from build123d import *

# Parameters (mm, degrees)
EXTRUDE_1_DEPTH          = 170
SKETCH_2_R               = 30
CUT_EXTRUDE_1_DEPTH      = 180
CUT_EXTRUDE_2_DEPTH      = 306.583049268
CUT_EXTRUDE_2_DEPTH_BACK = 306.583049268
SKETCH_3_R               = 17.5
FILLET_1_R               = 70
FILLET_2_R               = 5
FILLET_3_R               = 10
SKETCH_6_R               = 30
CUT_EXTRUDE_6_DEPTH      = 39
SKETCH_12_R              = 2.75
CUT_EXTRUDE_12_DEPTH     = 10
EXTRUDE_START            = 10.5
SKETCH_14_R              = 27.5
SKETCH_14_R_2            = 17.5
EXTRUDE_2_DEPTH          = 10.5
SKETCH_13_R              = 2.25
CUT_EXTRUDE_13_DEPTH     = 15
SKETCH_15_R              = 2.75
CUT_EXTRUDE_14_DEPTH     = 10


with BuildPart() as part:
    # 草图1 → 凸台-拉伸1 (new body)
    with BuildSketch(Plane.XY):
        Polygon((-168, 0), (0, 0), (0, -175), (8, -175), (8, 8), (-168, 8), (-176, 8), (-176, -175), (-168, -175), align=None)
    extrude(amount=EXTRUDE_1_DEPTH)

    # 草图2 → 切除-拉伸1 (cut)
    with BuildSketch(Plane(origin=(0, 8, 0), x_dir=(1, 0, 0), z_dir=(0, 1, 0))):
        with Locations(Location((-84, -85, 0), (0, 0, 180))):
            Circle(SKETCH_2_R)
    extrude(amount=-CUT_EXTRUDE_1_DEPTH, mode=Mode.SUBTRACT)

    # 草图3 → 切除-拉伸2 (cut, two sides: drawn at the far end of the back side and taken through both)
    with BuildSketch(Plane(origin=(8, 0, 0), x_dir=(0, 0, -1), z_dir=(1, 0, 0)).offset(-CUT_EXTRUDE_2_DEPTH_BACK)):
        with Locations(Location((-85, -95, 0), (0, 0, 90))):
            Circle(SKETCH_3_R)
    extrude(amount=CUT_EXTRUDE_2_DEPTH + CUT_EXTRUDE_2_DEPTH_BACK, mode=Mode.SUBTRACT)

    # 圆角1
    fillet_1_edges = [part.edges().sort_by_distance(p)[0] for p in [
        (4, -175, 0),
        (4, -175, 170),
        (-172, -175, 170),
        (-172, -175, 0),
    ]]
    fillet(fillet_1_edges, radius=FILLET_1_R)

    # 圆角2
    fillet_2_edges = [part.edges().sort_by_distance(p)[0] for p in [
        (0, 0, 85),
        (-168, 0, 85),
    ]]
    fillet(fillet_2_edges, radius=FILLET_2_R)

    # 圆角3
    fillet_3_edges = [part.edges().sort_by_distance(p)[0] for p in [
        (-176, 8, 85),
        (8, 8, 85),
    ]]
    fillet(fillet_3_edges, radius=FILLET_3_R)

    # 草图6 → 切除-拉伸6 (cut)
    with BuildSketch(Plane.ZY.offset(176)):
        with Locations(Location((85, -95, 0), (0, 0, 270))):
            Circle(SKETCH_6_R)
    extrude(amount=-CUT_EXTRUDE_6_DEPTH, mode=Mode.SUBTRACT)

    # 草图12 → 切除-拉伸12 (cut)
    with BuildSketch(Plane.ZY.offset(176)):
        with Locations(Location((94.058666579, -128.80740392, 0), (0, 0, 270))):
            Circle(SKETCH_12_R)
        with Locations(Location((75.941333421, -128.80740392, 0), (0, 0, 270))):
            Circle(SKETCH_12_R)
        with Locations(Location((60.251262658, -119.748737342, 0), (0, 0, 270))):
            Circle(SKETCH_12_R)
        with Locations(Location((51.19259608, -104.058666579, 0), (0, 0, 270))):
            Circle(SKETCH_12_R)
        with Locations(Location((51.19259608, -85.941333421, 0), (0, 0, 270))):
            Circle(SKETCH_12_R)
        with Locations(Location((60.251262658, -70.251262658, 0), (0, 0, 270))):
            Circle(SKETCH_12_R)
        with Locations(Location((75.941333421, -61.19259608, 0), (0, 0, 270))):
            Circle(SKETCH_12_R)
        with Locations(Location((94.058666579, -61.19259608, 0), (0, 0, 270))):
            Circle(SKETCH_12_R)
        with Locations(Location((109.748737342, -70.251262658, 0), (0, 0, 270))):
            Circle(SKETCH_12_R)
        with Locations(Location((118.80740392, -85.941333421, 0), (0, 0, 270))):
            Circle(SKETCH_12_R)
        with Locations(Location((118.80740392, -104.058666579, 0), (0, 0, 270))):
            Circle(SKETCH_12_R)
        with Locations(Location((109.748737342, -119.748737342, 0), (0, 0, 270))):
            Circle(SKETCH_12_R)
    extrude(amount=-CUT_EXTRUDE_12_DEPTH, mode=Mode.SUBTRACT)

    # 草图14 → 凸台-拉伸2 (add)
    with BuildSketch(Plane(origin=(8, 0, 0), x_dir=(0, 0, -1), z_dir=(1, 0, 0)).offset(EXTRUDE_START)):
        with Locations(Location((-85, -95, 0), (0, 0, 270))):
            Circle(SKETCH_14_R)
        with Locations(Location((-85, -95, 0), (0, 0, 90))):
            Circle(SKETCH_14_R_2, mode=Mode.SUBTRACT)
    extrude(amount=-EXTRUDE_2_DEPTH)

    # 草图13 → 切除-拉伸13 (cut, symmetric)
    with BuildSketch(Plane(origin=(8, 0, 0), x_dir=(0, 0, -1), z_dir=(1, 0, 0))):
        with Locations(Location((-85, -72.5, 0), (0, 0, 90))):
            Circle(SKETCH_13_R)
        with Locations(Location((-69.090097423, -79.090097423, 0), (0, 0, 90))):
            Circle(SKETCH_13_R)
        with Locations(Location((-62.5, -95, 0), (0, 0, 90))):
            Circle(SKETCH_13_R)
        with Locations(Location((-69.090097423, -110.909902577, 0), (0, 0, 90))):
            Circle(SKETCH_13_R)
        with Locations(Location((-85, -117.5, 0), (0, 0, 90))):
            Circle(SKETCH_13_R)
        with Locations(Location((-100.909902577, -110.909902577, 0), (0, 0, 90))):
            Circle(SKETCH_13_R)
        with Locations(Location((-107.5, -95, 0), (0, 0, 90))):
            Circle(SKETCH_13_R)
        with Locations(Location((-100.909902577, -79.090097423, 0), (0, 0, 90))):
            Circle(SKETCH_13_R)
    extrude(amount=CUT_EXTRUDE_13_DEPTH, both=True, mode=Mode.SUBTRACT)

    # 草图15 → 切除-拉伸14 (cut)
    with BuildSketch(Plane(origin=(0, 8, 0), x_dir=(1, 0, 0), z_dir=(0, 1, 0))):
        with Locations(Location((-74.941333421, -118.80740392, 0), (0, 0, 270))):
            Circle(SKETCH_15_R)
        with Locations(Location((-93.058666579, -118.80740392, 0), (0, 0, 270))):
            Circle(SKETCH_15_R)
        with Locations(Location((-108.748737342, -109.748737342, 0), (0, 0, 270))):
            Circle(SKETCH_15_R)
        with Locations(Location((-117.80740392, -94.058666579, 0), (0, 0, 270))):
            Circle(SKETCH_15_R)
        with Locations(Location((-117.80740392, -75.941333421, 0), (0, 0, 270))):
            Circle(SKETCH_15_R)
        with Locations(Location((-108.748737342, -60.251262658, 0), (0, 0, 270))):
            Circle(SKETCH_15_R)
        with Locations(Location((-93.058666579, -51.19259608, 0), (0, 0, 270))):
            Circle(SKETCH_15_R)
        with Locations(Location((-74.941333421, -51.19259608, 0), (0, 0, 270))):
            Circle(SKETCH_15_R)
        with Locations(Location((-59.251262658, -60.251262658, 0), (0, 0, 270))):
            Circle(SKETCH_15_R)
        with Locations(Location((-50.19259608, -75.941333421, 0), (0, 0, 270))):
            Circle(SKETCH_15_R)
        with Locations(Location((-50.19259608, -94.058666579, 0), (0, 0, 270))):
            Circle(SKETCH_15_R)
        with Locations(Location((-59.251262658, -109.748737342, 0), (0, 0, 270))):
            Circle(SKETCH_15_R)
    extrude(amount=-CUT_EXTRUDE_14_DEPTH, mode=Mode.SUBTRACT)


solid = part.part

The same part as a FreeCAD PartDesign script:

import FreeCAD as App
import Part
import Sketcher

V = App.Vector


def edges_at(feature, points):
    """Names of the edges that pass closest to the given points."""
    edges = feature.Shape.Edges
    near = lambda p: min(range(len(edges)), key=lambda i: edges[i].distToShape(Part.Vertex(*p))[0])
    return sorted({f"Edge{near(p) + 1}" for p in points})

doc = App.newDocument("Part")
body = doc.addObject("PartDesign::Body", "Body")

# Sketch on XY plane
sketch1 = body.newObject("Sketcher::SketchObject", "Sketch")
sketch1.AttachmentSupport = (doc.getObject("XY_Plane"), [""])
sketch1.MapMode = "FlatFace"
sketch1.addGeometry([
    Part.LineSegment(V(-168, 0, 0), V(0, 0, 0)),  # 0
    Part.LineSegment(V(0, 0, 0), V(0, -175, 0)),  # 1
    Part.LineSegment(V(0, -175, 0), V(8, -175, 0)),  # 2
    Part.LineSegment(V(8, -175, 0), V(8, 8, 0)),  # 3
    Part.LineSegment(V(8, 8, 0), V(-176, 8, 0)),  # 4
    Part.LineSegment(V(-176, 8, 0), V(-176, -175, 0)),  # 5
    Part.LineSegment(V(-176, -175, 0), V(-168, -175, 0)),  # 6
    Part.LineSegment(V(-168, -175, 0), V(-168, 0, 0)),  # 7
], False)
sketch1.addConstraint([
    Sketcher.Constraint("Coincident", 0, 2, 1, 1),
    Sketcher.Constraint("Coincident", 1, 2, 2, 1),
    Sketcher.Constraint("Coincident", 2, 2, 3, 1),
    Sketcher.Constraint("Coincident", 3, 2, 4, 1),
    Sketcher.Constraint("Coincident", 4, 2, 5, 1),
    Sketcher.Constraint("Coincident", 5, 2, 6, 1),
    Sketcher.Constraint("Coincident", 6, 2, 7, 1),
    Sketcher.Constraint("Coincident", 7, 2, 0, 1),
    Sketcher.Constraint("Horizontal", 0),
    Sketcher.Constraint("Vertical", 1),
    Sketcher.Constraint("Horizontal", 2),
    Sketcher.Constraint("Vertical", 3),
    Sketcher.Constraint("Horizontal", 4),
    Sketcher.Constraint("Vertical", 5),
    Sketcher.Constraint("Horizontal", 6),
    Sketcher.Constraint("Vertical", 7),
    Sketcher.Constraint("Coincident", 0, 2, -1, 1),
    Sketcher.Constraint("Horizontal", 2, 2, 5, 2),
    Sketcher.Constraint("Equal", 2, 6),
    Sketcher.Constraint("DistanceX", 0, 1, 0, 2, 168.0),
    Sketcher.Constraint("DistanceX", 2, 1, 2, 2, 8.0),
    Sketcher.Constraint("DistanceY", 1, 2, 1, 1, 175.0),
    Sketcher.Constraint("DistanceY", 3, 1, 3, 2, 183.0),
])
pad1 = body.newObject("PartDesign::Pad", "Pad")
pad1.Profile = sketch1
pad1.Length = 170

# Sketch on XZ plane
sketch2 = body.newObject("Sketcher::SketchObject", "Sketch001")
sketch2.AttachmentSupport = (doc.getObject("XZ_Plane"), [""])
sketch2.MapMode = "FlatFace"
sketch2.AttachmentOffset = App.Placement(V(0, 0, -8), App.Rotation())
sketch2.addGeometry(Part.Circle(V(-84, 85, 0), V(0, 0, 1), 30), False)
sketch2.addConstraint([
    Sketcher.Constraint("Diameter", 0, 60.0),
    Sketcher.Constraint("DistanceX", 0, 3, -1, 1, 84.0),
    Sketcher.Constraint("DistanceY", -1, 1, 0, 3, 85.0),
])
pocket1 = body.newObject("PartDesign::Pocket", "Pocket")
pocket1.Profile = sketch2
pocket1.Length = 180
pocket1.Reversed = True

# Sketch on YZ plane
sketch3 = body.newObject("Sketcher::SketchObject", "Sketch002")
sketch3.AttachmentSupport = (doc.getObject("YZ_Plane"), [""])
sketch3.MapMode = "FlatFace"
sketch3.AttachmentOffset = App.Placement(V(0, 0, 8), App.Rotation())
sketch3.addGeometry(Part.Circle(V(-95, 85, 0), V(0, 0, 1), 18), False)
sketch3.addConstraint([
    Sketcher.Constraint("Diameter", 0, 35.0),
    Sketcher.Constraint("DistanceX", 0, 3, -1, 1, 95.0),
    Sketcher.Constraint("DistanceY", -1, 1, 0, 3, 85.0),
])
pocket2 = body.newObject("PartDesign::Pocket", "Pocket001")
pocket2.Profile = sketch3
pocket2.Type = "ThroughAll"
pocket2.Midplane = True
doc.recompute()

fillet = body.newObject("PartDesign::Fillet", "Fillet")
fillet.Base = (pocket2, edges_at(pocket2, [
    (4, -175, 0),
    (4, -175, 170),
    (-172, -175, 170),
    (-172, -175, 0),
]))
fillet.Radius = 70
doc.recompute()

fillet2 = body.newObject("PartDesign::Fillet", "Fillet001")
fillet2.Base = (fillet, edges_at(fillet, [(0, 0, 85), (-168, 0, 85)]))
fillet2.Radius = 5
doc.recompute()

fillet3 = body.newObject("PartDesign::Fillet", "Fillet002")
fillet3.Base = (fillet2, edges_at(fillet2, [(-176, 8, 85), (8, 8, 85)]))
fillet3.Radius = 10

# Sketch on YZ plane
sketch4 = body.newObject("Sketcher::SketchObject", "Sketch003")
sketch4.AttachmentSupport = (doc.getObject("YZ_Plane"), [""])
sketch4.MapMode = "FlatFace"
sketch4.AttachmentOffset = App.Placement(V(0, 0, -176), App.Rotation())
sketch4.addGeometry(Part.Circle(V(-95, 85, 0), V(0, 0, 1), 30), False)
sketch4.addConstraint([
    Sketcher.Constraint("Diameter", 0, 60.0),
    Sketcher.Constraint("DistanceX", 0, 3, -1, 1, 95.0),
    Sketcher.Constraint("DistanceY", -1, 1, 0, 3, 85.0),
])
pocket3 = body.newObject("PartDesign::Pocket", "Pocket002")
pocket3.Profile = sketch4
pocket3.Length = 39
pocket3.Reversed = True

# Sketch on YZ plane
sketch5 = body.newObject("Sketcher::SketchObject", "Sketch004")
sketch5.AttachmentSupport = (doc.getObject("YZ_Plane"), [""])
sketch5.MapMode = "FlatFace"
sketch5.AttachmentOffset = App.Placement(V(0, 0, -176), App.Rotation())
sketch5.addGeometry([
    Part.Circle(V(-128.8, 94.1, 0), V(0, 0, 1), 2.8),  # 0
    Part.Circle(V(-128.8, 75.9, 0), V(0, 0, 1), 2.8),  # 1
    Part.Circle(V(-119.7, 60.3, 0), V(0, 0, 1), 2.8),  # 2
    Part.Circle(V(-104.1, 51.2, 0), V(0, 0, 1), 2.8),  # 3
    Part.Circle(V(-85.9, 51.2, 0), V(0, 0, 1), 2.8),  # 4
    Part.Circle(V(-70.3, 60.3, 0), V(0, 0, 1), 2.8),  # 5
    Part.Circle(V(-61.2, 75.9, 0), V(0, 0, 1), 2.8),  # 6
    Part.Circle(V(-61.2, 94.1, 0), V(0, 0, 1), 2.8),  # 7
    Part.Circle(V(-70.3, 109.7, 0), V(0, 0, 1), 2.8),  # 8
    Part.Circle(V(-85.9, 118.8, 0), V(0, 0, 1), 2.8),  # 9
    Part.Circle(V(-104.1, 118.8, 0), V(0, 0, 1), 2.8),  # 10
    Part.Circle(V(-119.7, 109.7, 0), V(0, 0, 1), 2.8),  # 11
], False)
sketch5.addConstraint([
    Sketcher.Constraint("Equal", 0, 1),
    Sketcher.Constraint("Equal", 1, 2),
    Sketcher.Constraint("Equal", 2, 3),
    Sketcher.Constraint("Equal", 3, 4),
    Sketcher.Constraint("Equal", 4, 5),
    Sketcher.Constraint("Equal", 5, 6),
    Sketcher.Constraint("Equal", 6, 7),
    Sketcher.Constraint("Equal", 7, 8),
    Sketcher.Constraint("Equal", 8, 9),
    Sketcher.Constraint("Equal", 9, 10),
    Sketcher.Constraint("Equal", 10, 11),
    Sketcher.Constraint("Horizontal", 3, 3, 4, 3),
    Sketcher.Constraint("Horizontal", 2, 3, 5, 3),
    Sketcher.Constraint("Horizontal", 1, 3, 6, 3),
    Sketcher.Constraint("Horizontal", 0, 3, 7, 3),
    Sketcher.Constraint("Horizontal", 9, 3, 10, 3),
    Sketcher.Constraint("Horizontal", 8, 3, 11, 3),
    Sketcher.Constraint("Vertical", 0, 3, 1, 3),
    Sketcher.Constraint("Vertical", 6, 3, 7, 3),
    Sketcher.Constraint("Vertical", 5, 3, 8, 3),
    Sketcher.Constraint("Vertical", 4, 3, 9, 3),
    Sketcher.Constraint("Vertical", 3, 3, 10, 3),
    Sketcher.Constraint("Vertical", 2, 3, 11, 3),
    Sketcher.Constraint("Diameter", 0, 5.5),
    Sketcher.Constraint("DistanceY", 2, 3, 1, 3, 15.690071),
    Sketcher.Constraint("DistanceX", 2, 3, 3, 3, 15.690071),
    Sketcher.Constraint("DistanceY", 3, 3, 0, 3, 42.86607),
    Sketcher.Constraint("DistanceX", 1, 3, 4, 3, 42.86607),
    Sketcher.Constraint("DistanceX", 4, 3, 5, 3, 15.690071),
    Sketcher.Constraint("DistanceX", 3, 3, 6, 3, 42.86607),
    Sketcher.Constraint("DistanceY", 7, 3, 8, 3, 15.690071),
    Sketcher.Constraint("DistanceY", 6, 3, 9, 3, 42.86607),
    Sketcher.Constraint("DistanceX", 0, 3, -1, 1, 128.807404),
    Sketcher.Constraint("DistanceY", -1, 1, 0, 3, 94.058667),
    Sketcher.Constraint("DistanceY", -1, 1, 1, 3, 75.941333),
    Sketcher.Constraint("DistanceX", 2, 3, -1, 1, 119.748737),
])
pocket4 = body.newObject("PartDesign::Pocket", "Pocket003")
pocket4.Profile = sketch5
pocket4.Length = 10
pocket4.Reversed = True

# Sketch on YZ plane
sketch6 = body.newObject("Sketcher::SketchObject", "Sketch005")
sketch6.AttachmentSupport = (doc.getObject("YZ_Plane"), [""])
sketch6.MapMode = "FlatFace"
sketch6.AttachmentOffset = App.Placement(V(0, 0, 18.5), App.Rotation())
sketch6.addGeometry([
    Part.Circle(V(-95, 85, 0), V(0, 0, 1), 28),
    Part.Circle(V(-95, 85, 0), V(0, 0, 1), 18),
], False)
sketch6.addConstraint([
    Sketcher.Constraint("Coincident", 1, 3, 0, 3),
    Sketcher.Constraint("Diameter", 0, 55.0),
    Sketcher.Constraint("Diameter", 1, 35.0),
    Sketcher.Constraint("DistanceX", 0, 3, -1, 1, 95.0),
    Sketcher.Constraint("DistanceY", -1, 1, 0, 3, 85.0),
])
pad2 = body.newObject("PartDesign::Pad", "Pad001")
pad2.Profile = sketch6
pad2.Length = 10.5
pad2.Reversed = True

# Sketch on YZ plane
sketch7 = body.newObject("Sketcher::SketchObject", "Sketch006")
sketch7.AttachmentSupport = (doc.getObject("YZ_Plane"), [""])
sketch7.MapMode = "FlatFace"
sketch7.AttachmentOffset = App.Placement(V(0, 0, 8), App.Rotation())
sketch7.addGeometry([
    Part.Circle(V(-72.5, 85, 0), V(0, 0, 1), 2.2),  # 0
    Part.Circle(V(-79.1, 69.1, 0), V(0, 0, 1), 2.2),  # 1
    Part.Circle(V(-95, 62.5, 0), V(0, 0, 1), 2.2),  # 2
    Part.Circle(V(-110.9, 69.1, 0), V(0, 0, 1), 2.2),  # 3
    Part.Circle(V(-117.5, 85, 0), V(0, 0, 1), 2.2),  # 4
    Part.Circle(V(-110.9, 100.9, 0), V(0, 0, 1), 2.2),  # 5
    Part.Circle(V(-95, 107.5, 0), V(0, 0, 1), 2.2),  # 6
    Part.Circle(V(-79.1, 100.9, 0), V(0, 0, 1), 2.2),  # 7
], False)
sketch7.addConstraint([
    Sketcher.Constraint("Equal", 0, 1),
    Sketcher.Constraint("Equal", 1, 2),
    Sketcher.Constraint("Equal", 2, 3),
    Sketcher.Constraint("Equal", 3, 4),
    Sketcher.Constraint("Equal", 4, 5),
    Sketcher.Constraint("Equal", 5, 6),
    Sketcher.Constraint("Equal", 6, 7),
    Sketcher.Constraint("Horizontal", 1, 3, 3, 3),
    Sketcher.Constraint("Horizontal", 0, 3, 4, 3),
    Sketcher.Constraint("Horizontal", 5, 3, 7, 3),
    Sketcher.Constraint("Vertical", 3, 3, 5, 3),
    Sketcher.Constraint("Vertical", 2, 3, 6, 3),
    Sketcher.Constraint("Vertical", 1, 3, 7, 3),
    Sketcher.Constraint("Diameter", 0, 4.5),
    Sketcher.Constraint("DistanceY", -1, 1, 0, 3, 85.0),
    Sketcher.Constraint("DistanceX", 2, 3, -1, 1, 95.0),
    Sketcher.Constraint("DistanceX", 4, 3, 0, 3, 45.0),
    Sketcher.Constraint("DistanceX", 0, 3, -1, 1, 72.5),
    Sketcher.Constraint("DistanceY", -1, 1, 2, 3, 62.5),
    Sketcher.Constraint("DistanceY", -1, 1, 6, 3, 107.5),
    Sketcher.Constraint("DistanceX", 1, 3, -1, 1, 79.090097),
    Sketcher.Constraint("DistanceY", -1, 1, 1, 3, 69.090097),
    Sketcher.Constraint("DistanceX", 3, 3, -1, 1, 110.909903),
    Sketcher.Constraint("DistanceY", -1, 1, 5, 3, 100.909903),
])
pocket5 = body.newObject("PartDesign::Pocket", "Pocket004")
pocket5.Profile = sketch7
pocket5.Length = 30
pocket5.Midplane = True

# Sketch on XZ plane
sketch8 = body.newObject("Sketcher::SketchObject", "Sketch007")
sketch8.AttachmentSupport = (doc.getObject("XZ_Plane"), [""])
sketch8.MapMode = "FlatFace"
sketch8.AttachmentOffset = App.Placement(V(0, 0, -8), App.Rotation())
sketch8.addGeometry([
    Part.Circle(V(-74.9, 118.8, 0), V(0, 0, 1), 2.8),  # 0
    Part.Circle(V(-93.1, 118.8, 0), V(0, 0, 1), 2.8),  # 1
    Part.Circle(V(-108.7, 109.7, 0), V(0, 0, 1), 2.8),  # 2
    Part.Circle(V(-117.8, 94.1, 0), V(0, 0, 1), 2.8),  # 3
    Part.Circle(V(-117.8, 75.9, 0), V(0, 0, 1), 2.8),  # 4
    Part.Circle(V(-108.7, 60.3, 0), V(0, 0, 1), 2.8),  # 5
    Part.Circle(V(-93.1, 51.2, 0), V(0, 0, 1), 2.8),  # 6
    Part.Circle(V(-74.9, 51.2, 0), V(0, 0, 1), 2.8),  # 7
    Part.Circle(V(-59.3, 60.3, 0), V(0, 0, 1), 2.8),  # 8
    Part.Circle(V(-50.2, 75.9, 0), V(0, 0, 1), 2.8),  # 9
    Part.Circle(V(-50.2, 94.1, 0), V(0, 0, 1), 2.8),  # 10
    Part.Circle(V(-59.3, 109.7, 0), V(0, 0, 1), 2.8),  # 11
], False)
sketch8.addConstraint([
    Sketcher.Constraint("Equal", 0, 1),
    Sketcher.Constraint("Equal", 1, 2),
    Sketcher.Constraint("Equal", 2, 3),
    Sketcher.Constraint("Equal", 3, 4),
    Sketcher.Constraint("Equal", 4, 5),
    Sketcher.Constraint("Equal", 5, 6),
    Sketcher.Constraint("Equal", 6, 7),
    Sketcher.Constraint("Equal", 7, 8),
    Sketcher.Constraint("Equal", 8, 9),
    Sketcher.Constraint("Equal", 9, 10),
    Sketcher.Constraint("Equal", 10, 11),
    Sketcher.Constraint("Horizontal", 0, 3, 1, 3),
    Sketcher.Constraint("Horizontal", 6, 3, 7, 3),
    Sketcher.Constraint("Horizontal", 5, 3, 8, 3),
    Sketcher.Constraint("Horizontal", 4, 3, 9, 3),
    Sketcher.Constraint("Horizontal", 3, 3, 10, 3),
    Sketcher.Constraint("Horizontal", 2, 3, 11, 3),
    Sketcher.Constraint("Vertical", 3, 3, 4, 3),
    Sketcher.Constraint("Vertical", 2, 3, 5, 3),
    Sketcher.Constraint("Vertical", 1, 3, 6, 3),
    Sketcher.Constraint("Vertical", 0, 3, 7, 3),
    Sketcher.Constraint("Vertical", 9, 3, 10, 3),
    Sketcher.Constraint("Vertical", 8, 3, 11, 3),
    Sketcher.Constraint("Diameter", 0, 5.5),
    Sketcher.Constraint("DistanceX", 2, 3, 1, 3, 15.690071),
    Sketcher.Constraint("DistanceY", 3, 3, 2, 3, 15.690071),
    Sketcher.Constraint("DistanceX", 3, 3, 0, 3, 42.86607),
    Sketcher.Constraint("DistanceY", 4, 3, 1, 3, 42.86607),
    Sketcher.Constraint("DistanceY", 5, 3, 4, 3, 15.690071),
    Sketcher.Constraint("DistanceY", 6, 3, 3, 3, 42.86607),
    Sketcher.Constraint("DistanceX", 7, 3, 8, 3, 15.690071),
    Sketcher.Constraint("DistanceX", 6, 3, 9, 3, 42.86607),
    Sketcher.Constraint("DistanceX", 0, 3, -1, 1, 74.941333),
    Sketcher.Constraint("DistanceY", -1, 1, 0, 3, 118.807404),
    Sketcher.Constraint("DistanceX", 1, 3, -1, 1, 93.058667),
    Sketcher.Constraint("DistanceY", -1, 1, 2, 3, 109.748737),
])
pocket6 = body.newObject("PartDesign::Pocket", "Pocket005")
pocket6.Profile = sketch8
pocket6.Length = 10
pocket6.Reversed = True

doc.recompute()
